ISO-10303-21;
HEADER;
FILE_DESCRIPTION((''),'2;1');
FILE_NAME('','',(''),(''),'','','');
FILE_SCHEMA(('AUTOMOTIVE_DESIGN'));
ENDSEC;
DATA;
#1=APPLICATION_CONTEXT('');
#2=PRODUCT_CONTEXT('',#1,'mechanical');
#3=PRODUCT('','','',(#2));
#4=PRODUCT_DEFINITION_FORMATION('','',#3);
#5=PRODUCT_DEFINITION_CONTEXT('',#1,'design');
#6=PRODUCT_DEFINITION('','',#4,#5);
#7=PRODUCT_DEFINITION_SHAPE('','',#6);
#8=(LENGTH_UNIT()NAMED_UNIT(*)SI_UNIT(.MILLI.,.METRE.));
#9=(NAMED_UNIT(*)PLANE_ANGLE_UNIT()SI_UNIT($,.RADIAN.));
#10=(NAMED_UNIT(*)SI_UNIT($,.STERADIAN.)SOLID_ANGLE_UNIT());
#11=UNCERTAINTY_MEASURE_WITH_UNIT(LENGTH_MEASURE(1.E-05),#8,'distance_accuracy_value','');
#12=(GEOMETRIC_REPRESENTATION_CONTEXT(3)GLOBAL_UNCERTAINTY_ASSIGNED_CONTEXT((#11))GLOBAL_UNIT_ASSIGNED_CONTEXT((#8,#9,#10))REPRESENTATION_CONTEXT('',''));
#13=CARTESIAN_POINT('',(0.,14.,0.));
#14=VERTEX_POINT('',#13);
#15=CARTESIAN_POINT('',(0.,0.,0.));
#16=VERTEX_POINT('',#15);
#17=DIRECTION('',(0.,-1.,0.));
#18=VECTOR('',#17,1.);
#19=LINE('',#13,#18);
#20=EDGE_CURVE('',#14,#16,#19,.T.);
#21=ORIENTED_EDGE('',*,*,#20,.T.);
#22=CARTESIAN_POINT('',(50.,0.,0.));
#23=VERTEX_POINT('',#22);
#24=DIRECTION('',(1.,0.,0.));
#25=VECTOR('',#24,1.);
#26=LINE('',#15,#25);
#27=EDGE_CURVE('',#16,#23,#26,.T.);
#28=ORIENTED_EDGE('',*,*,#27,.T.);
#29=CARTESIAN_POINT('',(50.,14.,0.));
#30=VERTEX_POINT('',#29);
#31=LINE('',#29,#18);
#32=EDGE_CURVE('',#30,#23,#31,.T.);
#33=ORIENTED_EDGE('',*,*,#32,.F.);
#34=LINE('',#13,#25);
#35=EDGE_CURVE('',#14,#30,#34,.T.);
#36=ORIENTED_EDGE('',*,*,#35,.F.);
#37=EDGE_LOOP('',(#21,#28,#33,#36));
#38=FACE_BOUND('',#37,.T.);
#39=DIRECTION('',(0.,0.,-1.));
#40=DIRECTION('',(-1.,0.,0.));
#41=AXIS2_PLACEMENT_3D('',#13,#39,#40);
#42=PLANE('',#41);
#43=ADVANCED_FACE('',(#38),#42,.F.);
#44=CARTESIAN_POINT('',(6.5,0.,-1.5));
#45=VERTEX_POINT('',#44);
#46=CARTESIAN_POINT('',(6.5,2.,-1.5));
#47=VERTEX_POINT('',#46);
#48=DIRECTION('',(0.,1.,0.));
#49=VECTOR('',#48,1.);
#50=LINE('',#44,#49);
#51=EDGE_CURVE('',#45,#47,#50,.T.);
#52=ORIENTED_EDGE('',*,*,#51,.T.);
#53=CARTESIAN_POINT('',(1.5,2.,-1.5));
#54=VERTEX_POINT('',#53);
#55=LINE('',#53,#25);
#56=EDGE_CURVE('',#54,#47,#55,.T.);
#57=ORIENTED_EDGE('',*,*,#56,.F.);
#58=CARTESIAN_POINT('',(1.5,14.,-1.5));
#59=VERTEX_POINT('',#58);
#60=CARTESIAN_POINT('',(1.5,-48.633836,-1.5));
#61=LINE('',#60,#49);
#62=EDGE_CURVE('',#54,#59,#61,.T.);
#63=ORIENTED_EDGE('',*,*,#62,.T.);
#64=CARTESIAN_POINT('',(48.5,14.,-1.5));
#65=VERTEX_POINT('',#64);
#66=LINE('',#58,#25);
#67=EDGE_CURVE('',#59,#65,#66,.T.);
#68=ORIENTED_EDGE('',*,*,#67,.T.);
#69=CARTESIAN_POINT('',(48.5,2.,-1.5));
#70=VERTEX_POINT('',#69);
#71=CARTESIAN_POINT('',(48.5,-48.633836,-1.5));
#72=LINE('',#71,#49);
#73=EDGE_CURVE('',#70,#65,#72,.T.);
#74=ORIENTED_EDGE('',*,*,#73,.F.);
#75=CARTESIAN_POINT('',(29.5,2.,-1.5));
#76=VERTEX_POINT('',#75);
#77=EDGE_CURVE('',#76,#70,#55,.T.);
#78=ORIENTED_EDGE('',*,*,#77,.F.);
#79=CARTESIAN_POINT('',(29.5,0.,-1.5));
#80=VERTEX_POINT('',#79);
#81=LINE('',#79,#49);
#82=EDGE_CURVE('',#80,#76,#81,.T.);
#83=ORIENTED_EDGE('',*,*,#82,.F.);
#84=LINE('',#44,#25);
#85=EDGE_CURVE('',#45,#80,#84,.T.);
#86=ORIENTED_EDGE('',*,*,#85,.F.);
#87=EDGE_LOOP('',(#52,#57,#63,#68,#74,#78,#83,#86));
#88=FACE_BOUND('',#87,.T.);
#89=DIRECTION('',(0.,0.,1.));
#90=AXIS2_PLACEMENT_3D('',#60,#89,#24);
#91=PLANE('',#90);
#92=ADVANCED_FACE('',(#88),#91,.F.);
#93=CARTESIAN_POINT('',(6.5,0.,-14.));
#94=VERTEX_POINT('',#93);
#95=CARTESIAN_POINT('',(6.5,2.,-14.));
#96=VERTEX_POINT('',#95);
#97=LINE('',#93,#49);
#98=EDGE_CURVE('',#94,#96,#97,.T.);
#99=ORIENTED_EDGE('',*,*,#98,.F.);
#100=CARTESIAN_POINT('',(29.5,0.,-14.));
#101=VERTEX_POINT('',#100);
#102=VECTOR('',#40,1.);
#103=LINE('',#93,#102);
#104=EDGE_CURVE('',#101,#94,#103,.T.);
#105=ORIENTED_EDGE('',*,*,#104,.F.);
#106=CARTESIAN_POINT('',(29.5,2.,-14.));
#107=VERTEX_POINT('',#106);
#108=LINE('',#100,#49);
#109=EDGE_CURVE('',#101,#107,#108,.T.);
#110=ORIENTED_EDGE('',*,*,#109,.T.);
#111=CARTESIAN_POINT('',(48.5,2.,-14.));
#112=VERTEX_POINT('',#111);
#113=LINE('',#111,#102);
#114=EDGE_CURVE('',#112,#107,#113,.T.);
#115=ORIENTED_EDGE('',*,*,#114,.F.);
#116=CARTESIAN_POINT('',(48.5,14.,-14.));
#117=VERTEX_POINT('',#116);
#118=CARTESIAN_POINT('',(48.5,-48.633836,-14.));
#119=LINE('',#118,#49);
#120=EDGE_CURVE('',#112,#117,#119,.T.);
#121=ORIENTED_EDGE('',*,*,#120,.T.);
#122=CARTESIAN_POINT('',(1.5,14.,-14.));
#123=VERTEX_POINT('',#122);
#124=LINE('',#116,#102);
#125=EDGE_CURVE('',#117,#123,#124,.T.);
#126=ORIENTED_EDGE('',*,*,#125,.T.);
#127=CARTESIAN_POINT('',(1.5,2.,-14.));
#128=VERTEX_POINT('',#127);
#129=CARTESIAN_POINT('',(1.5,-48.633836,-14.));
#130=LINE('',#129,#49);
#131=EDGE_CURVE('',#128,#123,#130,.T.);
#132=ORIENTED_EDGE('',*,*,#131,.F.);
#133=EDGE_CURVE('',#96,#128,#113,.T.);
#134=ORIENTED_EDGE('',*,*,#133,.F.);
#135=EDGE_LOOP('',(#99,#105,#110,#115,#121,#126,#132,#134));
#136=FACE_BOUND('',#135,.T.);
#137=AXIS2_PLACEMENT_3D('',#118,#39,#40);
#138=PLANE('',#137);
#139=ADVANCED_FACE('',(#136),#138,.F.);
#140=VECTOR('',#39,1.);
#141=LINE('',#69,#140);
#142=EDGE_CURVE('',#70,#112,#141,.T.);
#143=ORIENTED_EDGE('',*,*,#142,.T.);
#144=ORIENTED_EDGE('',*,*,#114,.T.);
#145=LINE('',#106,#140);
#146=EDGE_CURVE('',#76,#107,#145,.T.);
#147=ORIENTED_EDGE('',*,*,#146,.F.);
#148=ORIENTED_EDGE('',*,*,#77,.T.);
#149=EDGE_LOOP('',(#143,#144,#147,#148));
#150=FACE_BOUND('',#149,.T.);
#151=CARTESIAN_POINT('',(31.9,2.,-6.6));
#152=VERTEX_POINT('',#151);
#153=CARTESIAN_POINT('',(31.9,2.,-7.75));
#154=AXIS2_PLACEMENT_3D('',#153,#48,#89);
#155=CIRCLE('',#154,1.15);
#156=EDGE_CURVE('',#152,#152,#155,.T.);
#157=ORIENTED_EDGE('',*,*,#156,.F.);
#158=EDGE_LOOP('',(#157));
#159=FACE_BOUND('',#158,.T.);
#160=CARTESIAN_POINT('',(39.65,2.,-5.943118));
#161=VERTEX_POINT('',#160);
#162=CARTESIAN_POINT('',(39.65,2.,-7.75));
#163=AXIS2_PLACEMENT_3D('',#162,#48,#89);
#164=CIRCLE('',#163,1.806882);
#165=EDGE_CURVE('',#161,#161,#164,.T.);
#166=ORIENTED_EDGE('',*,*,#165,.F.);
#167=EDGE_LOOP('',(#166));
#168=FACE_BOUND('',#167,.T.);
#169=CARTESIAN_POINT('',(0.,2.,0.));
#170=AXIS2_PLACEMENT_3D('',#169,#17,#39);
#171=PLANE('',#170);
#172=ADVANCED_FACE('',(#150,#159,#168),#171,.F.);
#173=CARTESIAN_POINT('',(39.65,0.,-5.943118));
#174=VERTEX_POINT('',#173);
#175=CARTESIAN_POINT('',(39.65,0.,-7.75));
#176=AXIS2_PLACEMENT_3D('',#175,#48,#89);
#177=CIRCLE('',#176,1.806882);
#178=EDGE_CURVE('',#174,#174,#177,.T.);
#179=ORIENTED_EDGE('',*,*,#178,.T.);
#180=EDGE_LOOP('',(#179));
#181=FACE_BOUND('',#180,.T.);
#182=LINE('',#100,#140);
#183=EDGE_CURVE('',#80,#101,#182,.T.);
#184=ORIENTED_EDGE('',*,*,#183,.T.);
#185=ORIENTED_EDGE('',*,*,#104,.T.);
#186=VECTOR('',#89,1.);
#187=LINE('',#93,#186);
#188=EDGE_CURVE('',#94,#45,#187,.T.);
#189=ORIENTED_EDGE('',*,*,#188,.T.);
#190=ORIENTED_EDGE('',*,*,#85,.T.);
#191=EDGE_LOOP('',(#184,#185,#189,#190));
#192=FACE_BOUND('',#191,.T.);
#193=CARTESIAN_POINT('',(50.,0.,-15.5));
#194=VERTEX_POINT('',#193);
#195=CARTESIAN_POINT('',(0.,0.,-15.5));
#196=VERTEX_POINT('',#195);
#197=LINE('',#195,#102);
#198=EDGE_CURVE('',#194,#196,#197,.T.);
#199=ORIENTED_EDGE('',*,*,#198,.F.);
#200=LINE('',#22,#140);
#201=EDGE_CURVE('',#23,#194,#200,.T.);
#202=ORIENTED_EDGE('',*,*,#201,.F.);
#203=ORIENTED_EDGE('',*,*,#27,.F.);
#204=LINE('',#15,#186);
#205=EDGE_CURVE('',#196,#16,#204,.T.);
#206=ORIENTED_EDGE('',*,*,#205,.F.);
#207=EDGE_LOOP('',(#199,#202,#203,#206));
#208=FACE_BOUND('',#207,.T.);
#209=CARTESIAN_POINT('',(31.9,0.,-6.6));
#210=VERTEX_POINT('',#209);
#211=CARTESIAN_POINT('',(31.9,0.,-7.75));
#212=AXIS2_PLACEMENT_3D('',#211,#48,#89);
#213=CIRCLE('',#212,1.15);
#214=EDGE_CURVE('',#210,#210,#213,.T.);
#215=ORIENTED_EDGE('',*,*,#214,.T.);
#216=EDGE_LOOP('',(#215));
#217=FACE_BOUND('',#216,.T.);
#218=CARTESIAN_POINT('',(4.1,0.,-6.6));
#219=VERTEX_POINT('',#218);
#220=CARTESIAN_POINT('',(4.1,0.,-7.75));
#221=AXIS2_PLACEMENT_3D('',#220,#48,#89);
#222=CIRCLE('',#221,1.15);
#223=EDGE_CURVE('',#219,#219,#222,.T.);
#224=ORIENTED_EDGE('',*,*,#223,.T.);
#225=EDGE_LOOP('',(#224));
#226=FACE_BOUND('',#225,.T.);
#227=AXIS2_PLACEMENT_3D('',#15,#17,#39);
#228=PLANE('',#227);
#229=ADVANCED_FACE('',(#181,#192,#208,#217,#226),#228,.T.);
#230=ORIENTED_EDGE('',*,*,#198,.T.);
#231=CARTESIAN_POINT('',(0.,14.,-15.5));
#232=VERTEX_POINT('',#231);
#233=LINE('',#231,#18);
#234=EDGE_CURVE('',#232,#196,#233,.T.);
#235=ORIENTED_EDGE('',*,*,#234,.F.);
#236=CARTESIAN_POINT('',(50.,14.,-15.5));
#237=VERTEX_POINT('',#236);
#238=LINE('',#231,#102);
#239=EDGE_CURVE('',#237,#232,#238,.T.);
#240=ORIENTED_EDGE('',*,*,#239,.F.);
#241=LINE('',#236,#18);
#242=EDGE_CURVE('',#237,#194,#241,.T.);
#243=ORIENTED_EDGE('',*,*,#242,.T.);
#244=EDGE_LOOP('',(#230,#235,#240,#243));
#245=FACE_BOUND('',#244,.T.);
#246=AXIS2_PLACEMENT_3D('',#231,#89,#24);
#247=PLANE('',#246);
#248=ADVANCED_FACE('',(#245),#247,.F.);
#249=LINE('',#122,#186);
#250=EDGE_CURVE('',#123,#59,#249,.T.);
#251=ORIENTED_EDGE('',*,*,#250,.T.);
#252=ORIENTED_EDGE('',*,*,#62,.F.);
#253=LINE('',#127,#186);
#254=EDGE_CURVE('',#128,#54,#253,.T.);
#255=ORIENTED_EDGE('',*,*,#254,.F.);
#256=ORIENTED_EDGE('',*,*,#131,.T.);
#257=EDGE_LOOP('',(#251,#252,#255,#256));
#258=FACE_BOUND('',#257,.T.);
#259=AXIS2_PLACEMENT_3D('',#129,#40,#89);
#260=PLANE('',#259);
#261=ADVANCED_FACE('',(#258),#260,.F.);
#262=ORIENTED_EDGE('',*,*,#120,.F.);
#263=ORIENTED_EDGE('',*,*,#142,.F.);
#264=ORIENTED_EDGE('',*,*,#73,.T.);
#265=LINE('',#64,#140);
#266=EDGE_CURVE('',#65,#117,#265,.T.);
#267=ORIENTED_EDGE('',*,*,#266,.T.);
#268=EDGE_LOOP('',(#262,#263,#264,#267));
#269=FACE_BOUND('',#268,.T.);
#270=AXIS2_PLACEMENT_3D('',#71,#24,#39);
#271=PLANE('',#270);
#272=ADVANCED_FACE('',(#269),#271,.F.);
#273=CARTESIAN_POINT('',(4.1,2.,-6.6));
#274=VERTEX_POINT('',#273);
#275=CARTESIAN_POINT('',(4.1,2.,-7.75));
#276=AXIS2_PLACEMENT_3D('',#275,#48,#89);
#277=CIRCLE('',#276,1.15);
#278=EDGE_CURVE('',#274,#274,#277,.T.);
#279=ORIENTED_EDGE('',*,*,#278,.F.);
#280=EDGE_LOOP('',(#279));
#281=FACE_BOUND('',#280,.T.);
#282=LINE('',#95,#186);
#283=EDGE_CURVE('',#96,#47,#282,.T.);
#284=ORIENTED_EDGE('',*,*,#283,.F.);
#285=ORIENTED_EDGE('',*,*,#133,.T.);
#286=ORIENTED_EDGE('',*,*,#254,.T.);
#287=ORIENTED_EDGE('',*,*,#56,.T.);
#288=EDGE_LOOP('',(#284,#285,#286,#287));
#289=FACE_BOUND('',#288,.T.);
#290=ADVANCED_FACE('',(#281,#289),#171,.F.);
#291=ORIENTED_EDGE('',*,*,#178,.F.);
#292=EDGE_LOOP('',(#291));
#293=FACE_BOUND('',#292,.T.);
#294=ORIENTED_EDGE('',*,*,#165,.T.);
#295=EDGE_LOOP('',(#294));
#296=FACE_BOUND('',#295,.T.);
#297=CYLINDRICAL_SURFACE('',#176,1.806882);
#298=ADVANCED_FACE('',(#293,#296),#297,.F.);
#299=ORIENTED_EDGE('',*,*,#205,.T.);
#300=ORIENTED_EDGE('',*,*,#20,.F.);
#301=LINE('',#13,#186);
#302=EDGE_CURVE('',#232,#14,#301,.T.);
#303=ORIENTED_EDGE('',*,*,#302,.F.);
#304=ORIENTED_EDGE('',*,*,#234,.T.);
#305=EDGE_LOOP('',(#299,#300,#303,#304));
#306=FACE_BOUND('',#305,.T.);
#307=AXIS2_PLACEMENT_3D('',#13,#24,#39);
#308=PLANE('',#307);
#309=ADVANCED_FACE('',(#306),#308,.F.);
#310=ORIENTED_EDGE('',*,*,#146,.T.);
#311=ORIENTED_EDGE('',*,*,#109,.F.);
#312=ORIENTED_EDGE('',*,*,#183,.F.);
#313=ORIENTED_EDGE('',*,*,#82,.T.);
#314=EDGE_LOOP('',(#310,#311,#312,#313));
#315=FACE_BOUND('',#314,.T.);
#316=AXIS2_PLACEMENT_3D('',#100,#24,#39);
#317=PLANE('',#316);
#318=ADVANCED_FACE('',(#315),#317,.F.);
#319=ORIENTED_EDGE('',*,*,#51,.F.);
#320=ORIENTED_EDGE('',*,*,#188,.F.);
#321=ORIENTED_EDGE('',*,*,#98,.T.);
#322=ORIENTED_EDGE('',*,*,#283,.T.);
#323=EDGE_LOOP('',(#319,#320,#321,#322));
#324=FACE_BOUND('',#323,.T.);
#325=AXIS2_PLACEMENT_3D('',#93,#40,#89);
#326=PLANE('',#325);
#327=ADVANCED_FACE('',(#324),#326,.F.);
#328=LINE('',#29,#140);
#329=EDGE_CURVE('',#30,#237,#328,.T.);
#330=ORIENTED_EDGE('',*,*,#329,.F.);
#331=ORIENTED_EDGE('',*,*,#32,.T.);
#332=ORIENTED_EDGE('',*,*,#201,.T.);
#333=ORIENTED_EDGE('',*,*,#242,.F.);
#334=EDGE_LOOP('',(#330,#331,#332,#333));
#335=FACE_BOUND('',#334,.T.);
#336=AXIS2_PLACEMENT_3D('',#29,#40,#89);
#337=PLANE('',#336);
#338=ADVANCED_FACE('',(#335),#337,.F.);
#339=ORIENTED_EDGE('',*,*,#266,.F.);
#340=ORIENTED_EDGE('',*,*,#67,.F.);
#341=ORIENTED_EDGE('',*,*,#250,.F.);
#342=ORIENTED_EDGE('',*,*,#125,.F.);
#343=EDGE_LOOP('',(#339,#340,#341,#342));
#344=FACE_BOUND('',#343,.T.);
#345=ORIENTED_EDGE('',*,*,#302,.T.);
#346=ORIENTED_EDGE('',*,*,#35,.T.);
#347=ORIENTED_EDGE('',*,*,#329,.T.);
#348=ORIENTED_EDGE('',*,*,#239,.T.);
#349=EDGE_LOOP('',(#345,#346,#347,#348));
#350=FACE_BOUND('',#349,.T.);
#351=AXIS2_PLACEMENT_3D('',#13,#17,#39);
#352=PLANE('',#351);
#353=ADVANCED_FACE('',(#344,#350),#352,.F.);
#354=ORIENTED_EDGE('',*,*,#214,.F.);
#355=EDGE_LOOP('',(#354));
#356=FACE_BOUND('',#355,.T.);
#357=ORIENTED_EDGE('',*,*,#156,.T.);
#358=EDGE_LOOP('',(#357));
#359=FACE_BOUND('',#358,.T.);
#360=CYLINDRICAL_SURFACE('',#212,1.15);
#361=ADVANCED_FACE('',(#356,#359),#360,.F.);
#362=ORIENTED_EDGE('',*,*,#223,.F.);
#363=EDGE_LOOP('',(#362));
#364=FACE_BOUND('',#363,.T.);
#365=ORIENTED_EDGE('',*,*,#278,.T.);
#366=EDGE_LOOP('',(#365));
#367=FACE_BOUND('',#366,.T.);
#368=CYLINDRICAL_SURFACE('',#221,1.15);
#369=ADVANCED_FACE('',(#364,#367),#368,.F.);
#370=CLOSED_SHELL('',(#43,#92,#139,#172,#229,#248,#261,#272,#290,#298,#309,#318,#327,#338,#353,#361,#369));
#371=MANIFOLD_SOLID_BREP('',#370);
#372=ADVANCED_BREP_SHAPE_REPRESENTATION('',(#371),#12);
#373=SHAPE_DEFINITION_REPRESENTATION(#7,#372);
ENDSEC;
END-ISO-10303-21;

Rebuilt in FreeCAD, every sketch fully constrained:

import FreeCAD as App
import Part
import Sketcher

V = App.Vector


def add_polygon(sketch, points):
    """Adds a closed chain of lines whose ends are joined by coincident constraints."""
    first, n = sketch.GeometryCount, len(points)
    for a, b in zip(points, points[1:] + points[:1]):
        sketch.addGeometry(Part.LineSegment(App.Vector(*a, 0), App.Vector(*b, 0)), False)
    for i in range(n):
        sketch.addConstraint(Sketcher.Constraint("Coincident", first + i, 2, first + (i + 1) % n, 1))

doc = App.newDocument("Part")
body = doc.addObject("PartDesign::Body", "Body")

sketch1 = body.newObject("Sketcher::SketchObject", "Sketch")
sketch1.AttachmentSupport = (doc.getObject("XZ_Plane"), [""])
sketch1.MapMode = "FlatFace"
add_polygon(sketch1, [(0, -16), (0, 0), (50, 0), (50, -16)])
sketch1.addConstraint(Sketcher.Constraint("Vertical", 0))
sketch1.addConstraint(Sketcher.Constraint("Horizontal", 1))
sketch1.addConstraint(Sketcher.Constraint("Vertical", 2))
sketch1.addConstraint(Sketcher.Constraint("Horizontal", 3))
sketch1.addConstraint(Sketcher.Constraint("Coincident", 0, 2, -1, 1))
sketch1.addConstraint(Sketcher.Constraint("DistanceX", 1, 1, 1, 2, 50.0))
sketch1.addConstraint(Sketcher.Constraint("DistanceY", 0, 1, 0, 2, 15.5))
pad1 = body.newObject("PartDesign::Pad", "Pad")
pad1.Profile = sketch1
pad1.Length = 14
pad1.Reversed = True

sketch2 = body.newObject("Sketcher::SketchObject", "Sketch001")
sketch2.AttachmentSupport = (doc.getObject("XZ_Plane"), [""])
sketch2.MapMode = "FlatFace"
sketch2.AttachmentOffset = App.Placement(V(0, 0, -14), App.Rotation())
add_polygon(sketch2, [(2, -14), (2, -2), (48, -2), (48, -14)])
sketch2.addConstraint(Sketcher.Constraint("Vertical", 0))
sketch2.addConstraint(Sketcher.Constraint("Horizontal", 1))
sketch2.addConstraint(Sketcher.Constraint("Vertical", 2))
sketch2.addConstraint(Sketcher.Constraint("Horizontal", 3))
sketch2.addConstraint(Sketcher.Constraint("DistanceX", 1, 1, 1, 2, 47.0))
sketch2.addConstraint(Sketcher.Constraint("DistanceY", 0, 1, 0, 2, 12.5))
sketch2.addConstraint(Sketcher.Constraint("DistanceY", 2, 2, -1, 1, 14.0))
sketch2.addConstraint(Sketcher.Constraint("DistanceX", -1, 1, 0, 2, 1.5))
pocket1 = body.newObject("PartDesign::Pocket", "Pocket")
pocket1.Profile = sketch2
pocket1.Length = 12
pocket1.Reversed = True

sketch3 = body.newObject("Sketcher::SketchObject", "Sketch002")
sketch3.AttachmentSupport = (doc.getObject("XZ_Plane"), [""])
sketch3.MapMode = "FlatFace"
sketch3.AttachmentOffset = App.Placement(V(0, 0, -2), App.Rotation())
sketch3.addGeometry(Part.Circle(V(4.1, -7.8, 0), V(0, 0, 1), 1.1), False)
sketch3.addGeometry(Part.Circle(V(31.9, -7.8, 0), V(0, 0, 1), 1.1), False)
sketch3.addGeometry(Part.Circle(V(39.6, -7.8, 0), V(0, 0, 1), 1.8), False)
add_polygon(sketch3, [(6.5, -14), (6.5, -1.5), (29.5, -1.5), (29.5, -14)])
sketch3.addConstraint(Sketcher.Constraint("Vertical", 3))
sketch3.addConstraint(Sketcher.Constraint("Horizontal", 4))
sketch3.addConstraint(Sketcher.Constraint("Vertical", 5))
sketch3.addConstraint(Sketcher.Constraint("Horizontal", 6))
sketch3.addConstraint(Sketcher.Constraint("Equal", 0, 1))
sketch3.addConstraint(Sketcher.Constraint("Horizontal", 0, 3, 1, 3))
sketch3.addConstraint(Sketcher.Constraint("Horizontal", 1, 3, 2, 3))
sketch3.addConstraint(Sketcher.Constraint("Diameter", 0, 2.3))
sketch3.addConstraint(Sketcher.Constraint("DistanceX", 4, 1, 4, 2, 23.0))
sketch3.addConstraint(Sketcher.Constraint("DistanceY", 3, 1, 3, 2, 12.5))
sketch3.addConstraint(Sketcher.Constraint("DistanceY", 5, 2, -1, 1, 14.0))
sketch3.addConstraint(Sketcher.Constraint("DistanceX", -1, 1, 0, 3, 4.1))
sketch3.addConstraint(Sketcher.Constraint("DistanceX", -1, 1, 1, 3, 31.9))
sketch3.addConstraint(Sketcher.Constraint("DistanceX", -1, 1, 3, 2, 6.5))
sketch3.addConstraint(Sketcher.Constraint("DistanceY", 0, 3, -1, 1, 7.75))
sketch3.addConstraint(Sketcher.Constraint("DistanceX", -1, 1, 2, 3, 39.65))
sketch3.addConstraint(Sketcher.Constraint("Diameter", 2, 3.613765))
pocket2 = body.newObject("PartDesign::Pocket", "Pocket001")
pocket2.Profile = sketch3
pocket2.Length = 2
pocket2.Reversed = True

doc.recompute()
